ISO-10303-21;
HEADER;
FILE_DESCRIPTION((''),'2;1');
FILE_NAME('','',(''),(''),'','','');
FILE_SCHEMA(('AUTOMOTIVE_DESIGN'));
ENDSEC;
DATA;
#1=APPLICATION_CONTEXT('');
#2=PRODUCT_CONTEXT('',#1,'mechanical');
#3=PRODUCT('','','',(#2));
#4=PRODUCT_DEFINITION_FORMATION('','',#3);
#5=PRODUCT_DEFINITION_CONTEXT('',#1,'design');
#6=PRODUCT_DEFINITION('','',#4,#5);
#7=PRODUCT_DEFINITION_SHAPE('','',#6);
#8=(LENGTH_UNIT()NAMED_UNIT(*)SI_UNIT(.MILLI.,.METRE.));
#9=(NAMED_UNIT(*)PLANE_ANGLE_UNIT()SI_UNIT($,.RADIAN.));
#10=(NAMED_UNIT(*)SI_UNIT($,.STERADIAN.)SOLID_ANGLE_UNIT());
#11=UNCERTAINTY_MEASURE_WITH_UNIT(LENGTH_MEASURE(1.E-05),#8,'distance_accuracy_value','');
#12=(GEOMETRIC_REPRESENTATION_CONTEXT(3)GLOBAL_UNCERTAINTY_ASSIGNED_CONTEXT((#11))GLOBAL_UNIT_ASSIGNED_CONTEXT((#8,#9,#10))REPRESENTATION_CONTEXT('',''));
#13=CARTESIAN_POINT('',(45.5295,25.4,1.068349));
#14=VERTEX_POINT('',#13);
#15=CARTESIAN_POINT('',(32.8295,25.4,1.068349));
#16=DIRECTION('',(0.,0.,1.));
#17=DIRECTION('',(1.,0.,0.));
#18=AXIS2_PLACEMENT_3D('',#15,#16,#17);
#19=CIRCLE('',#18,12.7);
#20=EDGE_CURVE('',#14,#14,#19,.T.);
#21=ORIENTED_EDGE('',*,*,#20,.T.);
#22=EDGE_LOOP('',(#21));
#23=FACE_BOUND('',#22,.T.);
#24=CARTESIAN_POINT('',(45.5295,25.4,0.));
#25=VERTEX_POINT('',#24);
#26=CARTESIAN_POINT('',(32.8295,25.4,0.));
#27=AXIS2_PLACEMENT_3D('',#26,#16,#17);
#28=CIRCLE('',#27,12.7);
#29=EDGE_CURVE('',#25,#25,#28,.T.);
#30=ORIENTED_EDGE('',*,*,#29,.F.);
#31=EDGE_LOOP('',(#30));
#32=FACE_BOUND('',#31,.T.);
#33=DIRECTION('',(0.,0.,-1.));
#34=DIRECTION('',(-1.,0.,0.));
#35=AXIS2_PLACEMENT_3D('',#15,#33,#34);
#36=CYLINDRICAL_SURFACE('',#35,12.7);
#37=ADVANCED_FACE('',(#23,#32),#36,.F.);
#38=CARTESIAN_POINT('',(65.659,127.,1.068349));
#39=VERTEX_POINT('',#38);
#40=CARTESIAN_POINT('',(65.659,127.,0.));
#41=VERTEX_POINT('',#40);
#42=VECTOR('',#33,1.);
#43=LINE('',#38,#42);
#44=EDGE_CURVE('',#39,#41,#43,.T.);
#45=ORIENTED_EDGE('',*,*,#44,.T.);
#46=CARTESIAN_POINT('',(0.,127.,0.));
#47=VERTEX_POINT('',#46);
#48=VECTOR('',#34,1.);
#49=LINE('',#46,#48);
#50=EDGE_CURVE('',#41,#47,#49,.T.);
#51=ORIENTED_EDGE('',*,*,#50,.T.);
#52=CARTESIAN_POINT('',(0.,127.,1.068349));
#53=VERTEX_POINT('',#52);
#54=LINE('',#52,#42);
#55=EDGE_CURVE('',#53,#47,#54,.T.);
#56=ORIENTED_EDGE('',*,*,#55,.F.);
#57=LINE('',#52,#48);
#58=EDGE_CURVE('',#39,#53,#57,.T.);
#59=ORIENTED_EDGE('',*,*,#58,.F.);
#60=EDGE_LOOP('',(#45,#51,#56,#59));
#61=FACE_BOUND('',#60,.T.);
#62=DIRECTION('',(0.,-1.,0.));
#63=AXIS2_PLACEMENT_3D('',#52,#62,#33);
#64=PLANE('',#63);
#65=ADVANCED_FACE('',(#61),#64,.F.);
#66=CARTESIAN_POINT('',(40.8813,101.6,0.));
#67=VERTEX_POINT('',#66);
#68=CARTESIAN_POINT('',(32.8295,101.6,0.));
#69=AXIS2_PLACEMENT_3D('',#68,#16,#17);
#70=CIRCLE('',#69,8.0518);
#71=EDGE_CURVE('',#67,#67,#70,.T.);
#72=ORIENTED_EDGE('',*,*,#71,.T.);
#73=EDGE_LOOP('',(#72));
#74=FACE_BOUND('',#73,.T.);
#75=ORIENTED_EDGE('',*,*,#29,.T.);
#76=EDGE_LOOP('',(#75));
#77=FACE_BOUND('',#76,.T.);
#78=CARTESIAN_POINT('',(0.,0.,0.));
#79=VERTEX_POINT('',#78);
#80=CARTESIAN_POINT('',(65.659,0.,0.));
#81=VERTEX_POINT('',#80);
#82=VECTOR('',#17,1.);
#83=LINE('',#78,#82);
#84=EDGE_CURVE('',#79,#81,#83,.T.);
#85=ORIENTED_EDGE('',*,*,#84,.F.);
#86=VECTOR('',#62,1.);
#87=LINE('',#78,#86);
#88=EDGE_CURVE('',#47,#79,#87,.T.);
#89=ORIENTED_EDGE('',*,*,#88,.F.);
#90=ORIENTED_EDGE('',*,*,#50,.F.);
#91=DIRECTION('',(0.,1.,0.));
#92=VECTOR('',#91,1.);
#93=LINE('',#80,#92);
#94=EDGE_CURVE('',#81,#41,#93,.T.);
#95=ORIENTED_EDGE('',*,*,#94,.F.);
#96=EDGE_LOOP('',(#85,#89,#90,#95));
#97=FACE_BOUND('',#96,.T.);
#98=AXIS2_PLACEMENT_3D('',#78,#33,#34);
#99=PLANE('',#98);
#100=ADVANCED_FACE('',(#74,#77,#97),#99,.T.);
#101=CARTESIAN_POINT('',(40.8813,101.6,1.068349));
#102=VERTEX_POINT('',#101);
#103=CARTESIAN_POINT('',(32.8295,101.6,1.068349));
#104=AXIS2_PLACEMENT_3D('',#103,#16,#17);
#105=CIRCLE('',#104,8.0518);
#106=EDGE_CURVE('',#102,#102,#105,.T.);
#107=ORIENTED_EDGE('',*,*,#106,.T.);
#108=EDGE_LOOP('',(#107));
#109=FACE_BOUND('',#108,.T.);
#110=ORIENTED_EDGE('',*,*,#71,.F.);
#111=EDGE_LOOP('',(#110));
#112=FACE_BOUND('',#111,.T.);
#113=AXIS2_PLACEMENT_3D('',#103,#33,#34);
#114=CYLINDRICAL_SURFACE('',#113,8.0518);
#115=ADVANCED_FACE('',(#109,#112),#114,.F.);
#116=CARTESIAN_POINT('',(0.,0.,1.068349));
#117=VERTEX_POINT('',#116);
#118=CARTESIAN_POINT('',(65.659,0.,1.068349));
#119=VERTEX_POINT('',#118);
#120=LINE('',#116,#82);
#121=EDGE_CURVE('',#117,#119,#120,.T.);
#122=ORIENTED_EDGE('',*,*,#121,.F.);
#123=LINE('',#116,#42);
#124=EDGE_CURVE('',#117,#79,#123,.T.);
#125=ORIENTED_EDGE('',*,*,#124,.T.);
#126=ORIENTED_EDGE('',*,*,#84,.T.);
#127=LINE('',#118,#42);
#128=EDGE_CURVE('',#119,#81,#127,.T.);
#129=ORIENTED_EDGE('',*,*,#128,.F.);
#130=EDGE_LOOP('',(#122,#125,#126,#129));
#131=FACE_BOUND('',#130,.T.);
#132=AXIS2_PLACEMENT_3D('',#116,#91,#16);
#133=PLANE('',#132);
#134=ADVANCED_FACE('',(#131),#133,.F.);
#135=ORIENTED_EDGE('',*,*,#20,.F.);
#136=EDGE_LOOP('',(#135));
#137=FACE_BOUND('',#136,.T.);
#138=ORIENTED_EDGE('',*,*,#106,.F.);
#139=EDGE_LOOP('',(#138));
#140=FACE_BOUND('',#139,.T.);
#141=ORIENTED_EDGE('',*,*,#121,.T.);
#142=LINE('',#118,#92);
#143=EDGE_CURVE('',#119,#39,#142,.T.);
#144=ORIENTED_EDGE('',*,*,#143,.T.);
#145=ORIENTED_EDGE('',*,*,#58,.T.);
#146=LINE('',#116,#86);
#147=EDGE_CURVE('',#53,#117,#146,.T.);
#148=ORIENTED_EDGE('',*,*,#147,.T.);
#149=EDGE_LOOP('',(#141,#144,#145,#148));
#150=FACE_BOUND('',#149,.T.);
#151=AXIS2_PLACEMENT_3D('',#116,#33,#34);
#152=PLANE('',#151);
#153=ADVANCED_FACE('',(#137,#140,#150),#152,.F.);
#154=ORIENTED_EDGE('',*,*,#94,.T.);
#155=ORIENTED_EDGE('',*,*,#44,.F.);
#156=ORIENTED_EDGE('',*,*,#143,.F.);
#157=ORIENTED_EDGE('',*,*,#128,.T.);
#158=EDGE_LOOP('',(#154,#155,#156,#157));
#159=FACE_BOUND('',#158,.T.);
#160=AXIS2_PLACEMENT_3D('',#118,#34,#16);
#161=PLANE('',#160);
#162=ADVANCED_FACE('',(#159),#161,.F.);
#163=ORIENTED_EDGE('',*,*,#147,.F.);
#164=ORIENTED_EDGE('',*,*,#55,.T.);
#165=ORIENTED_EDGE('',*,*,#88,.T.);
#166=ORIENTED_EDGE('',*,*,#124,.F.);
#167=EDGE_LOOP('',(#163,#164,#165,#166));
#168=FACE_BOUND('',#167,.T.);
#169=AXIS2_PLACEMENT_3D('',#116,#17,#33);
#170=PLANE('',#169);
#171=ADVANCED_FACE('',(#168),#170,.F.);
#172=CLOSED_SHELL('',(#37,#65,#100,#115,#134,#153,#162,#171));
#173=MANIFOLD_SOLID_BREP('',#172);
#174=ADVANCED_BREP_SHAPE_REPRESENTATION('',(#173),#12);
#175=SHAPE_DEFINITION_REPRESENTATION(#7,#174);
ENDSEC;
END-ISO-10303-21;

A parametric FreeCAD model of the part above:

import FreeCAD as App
import Part
import Sketcher

V = App.Vector
Q = App.Units.Quantity

doc = App.newDocument("Part")
params = doc.addObject("Spreadsheet::Sheet", "Params")
for row, (alias, value) in enumerate([
    ("sketch1_diameter", "1 in"),
    ("sketch1_height", "5 in"),
    ("sketch1_diameter2", "0.634 in"),
    ("sketch1_width", "2.585 in"),
    ("pad1_length", "1.068349 mm"),
], start=1):
    params.set(f"A{row}", alias)
    params.set(f"B{row}", "=" + value)
    params.setAlias(f"B{row}", alias)

body = doc.addObject("PartDesign::Body", "Body")

# Sketch on XY plane
sketch1 = body.newObject("Sketcher::SketchObject", "Sketch")
sketch1.AttachmentSupport = (doc.getObject("XY_Plane"), [""])
sketch1.MapMode = "FlatFace"
sketch1.addGeometry([
    Part.LineSegment(V(0, 127, 0), V(0, 0, 0)),  # 0
    Part.LineSegment(V(0, 0, 0), V(65.659, 0, 0)),  # 1
    Part.LineSegment(V(65.659, 0, 0), V(65.659, 127, 0)),  # 2
    Part.LineSegment(V(65.659, 127, 0), V(0, 127, 0)),  # 3
    Part.Circle(V(32.8295, 25.4, 0), V(0, 0, 1), 12.7),  # 4
    Part.Circle(V(32.8295, 101.6, 0), V(0, 0, 1), 8.0518),  # 5
], False)
sketch1.addConstraint([
    Sketcher.Constraint("Coincident", 0, 2, 1, 1),
    Sketcher.Constraint("Coincident", 1, 2, 2, 1),
    Sketcher.Constraint("Coincident", 2, 2, 3, 1),
    Sketcher.Constraint("Coincident", 3, 2, 0, 1),
    Sketcher.Constraint("Vertical", 0),
    Sketcher.Constraint("Horizontal", 1),
    Sketcher.Constraint("Vertical", 2),
    Sketcher.Constraint("Horizontal", 3),
    Sketcher.Constraint("Coincident", 0, 2, -1, 1),
    Sketcher.Constraint("Vertical", 4, 3, 5, 3),
    Sketcher.Constraint("Diameter", 4, Q("1 in")),
    Sketcher.Constraint("DistanceY", 0, 2, 0, 1, Q("5 in")),
    Sketcher.Constraint("Diameter", 5, Q("0.634 in")),
    Sketcher.Constraint("DistanceY", -1, 1, 4, 3, Q("1 in")),
    Sketcher.Constraint("DistanceY", -1, 1, 5, 3, Q("4 in")),
    Sketcher.Constraint("DistanceX", 1, 1, 1, 2, Q("2.585 in")),
    Sketcher.Constraint("DistanceX", -1, 1, 4, 3, Q("1.2925 in")),
])
sketch1.setExpression("Constraints[10]", "Params.sketch1_diameter")
sketch1.setExpression("Constraints[11]", "Params.sketch1_height")
sketch1.setExpression("Constraints[12]", "Params.sketch1_diameter2")
sketch1.setExpression("Constraints[15]", "Params.sketch1_width")
pad1 = body.newObject("PartDesign::Pad", "Pad")
pad1.Profile = sketch1
pad1.setExpression("Length", "Params.pad1_length")

doc.recompute()
